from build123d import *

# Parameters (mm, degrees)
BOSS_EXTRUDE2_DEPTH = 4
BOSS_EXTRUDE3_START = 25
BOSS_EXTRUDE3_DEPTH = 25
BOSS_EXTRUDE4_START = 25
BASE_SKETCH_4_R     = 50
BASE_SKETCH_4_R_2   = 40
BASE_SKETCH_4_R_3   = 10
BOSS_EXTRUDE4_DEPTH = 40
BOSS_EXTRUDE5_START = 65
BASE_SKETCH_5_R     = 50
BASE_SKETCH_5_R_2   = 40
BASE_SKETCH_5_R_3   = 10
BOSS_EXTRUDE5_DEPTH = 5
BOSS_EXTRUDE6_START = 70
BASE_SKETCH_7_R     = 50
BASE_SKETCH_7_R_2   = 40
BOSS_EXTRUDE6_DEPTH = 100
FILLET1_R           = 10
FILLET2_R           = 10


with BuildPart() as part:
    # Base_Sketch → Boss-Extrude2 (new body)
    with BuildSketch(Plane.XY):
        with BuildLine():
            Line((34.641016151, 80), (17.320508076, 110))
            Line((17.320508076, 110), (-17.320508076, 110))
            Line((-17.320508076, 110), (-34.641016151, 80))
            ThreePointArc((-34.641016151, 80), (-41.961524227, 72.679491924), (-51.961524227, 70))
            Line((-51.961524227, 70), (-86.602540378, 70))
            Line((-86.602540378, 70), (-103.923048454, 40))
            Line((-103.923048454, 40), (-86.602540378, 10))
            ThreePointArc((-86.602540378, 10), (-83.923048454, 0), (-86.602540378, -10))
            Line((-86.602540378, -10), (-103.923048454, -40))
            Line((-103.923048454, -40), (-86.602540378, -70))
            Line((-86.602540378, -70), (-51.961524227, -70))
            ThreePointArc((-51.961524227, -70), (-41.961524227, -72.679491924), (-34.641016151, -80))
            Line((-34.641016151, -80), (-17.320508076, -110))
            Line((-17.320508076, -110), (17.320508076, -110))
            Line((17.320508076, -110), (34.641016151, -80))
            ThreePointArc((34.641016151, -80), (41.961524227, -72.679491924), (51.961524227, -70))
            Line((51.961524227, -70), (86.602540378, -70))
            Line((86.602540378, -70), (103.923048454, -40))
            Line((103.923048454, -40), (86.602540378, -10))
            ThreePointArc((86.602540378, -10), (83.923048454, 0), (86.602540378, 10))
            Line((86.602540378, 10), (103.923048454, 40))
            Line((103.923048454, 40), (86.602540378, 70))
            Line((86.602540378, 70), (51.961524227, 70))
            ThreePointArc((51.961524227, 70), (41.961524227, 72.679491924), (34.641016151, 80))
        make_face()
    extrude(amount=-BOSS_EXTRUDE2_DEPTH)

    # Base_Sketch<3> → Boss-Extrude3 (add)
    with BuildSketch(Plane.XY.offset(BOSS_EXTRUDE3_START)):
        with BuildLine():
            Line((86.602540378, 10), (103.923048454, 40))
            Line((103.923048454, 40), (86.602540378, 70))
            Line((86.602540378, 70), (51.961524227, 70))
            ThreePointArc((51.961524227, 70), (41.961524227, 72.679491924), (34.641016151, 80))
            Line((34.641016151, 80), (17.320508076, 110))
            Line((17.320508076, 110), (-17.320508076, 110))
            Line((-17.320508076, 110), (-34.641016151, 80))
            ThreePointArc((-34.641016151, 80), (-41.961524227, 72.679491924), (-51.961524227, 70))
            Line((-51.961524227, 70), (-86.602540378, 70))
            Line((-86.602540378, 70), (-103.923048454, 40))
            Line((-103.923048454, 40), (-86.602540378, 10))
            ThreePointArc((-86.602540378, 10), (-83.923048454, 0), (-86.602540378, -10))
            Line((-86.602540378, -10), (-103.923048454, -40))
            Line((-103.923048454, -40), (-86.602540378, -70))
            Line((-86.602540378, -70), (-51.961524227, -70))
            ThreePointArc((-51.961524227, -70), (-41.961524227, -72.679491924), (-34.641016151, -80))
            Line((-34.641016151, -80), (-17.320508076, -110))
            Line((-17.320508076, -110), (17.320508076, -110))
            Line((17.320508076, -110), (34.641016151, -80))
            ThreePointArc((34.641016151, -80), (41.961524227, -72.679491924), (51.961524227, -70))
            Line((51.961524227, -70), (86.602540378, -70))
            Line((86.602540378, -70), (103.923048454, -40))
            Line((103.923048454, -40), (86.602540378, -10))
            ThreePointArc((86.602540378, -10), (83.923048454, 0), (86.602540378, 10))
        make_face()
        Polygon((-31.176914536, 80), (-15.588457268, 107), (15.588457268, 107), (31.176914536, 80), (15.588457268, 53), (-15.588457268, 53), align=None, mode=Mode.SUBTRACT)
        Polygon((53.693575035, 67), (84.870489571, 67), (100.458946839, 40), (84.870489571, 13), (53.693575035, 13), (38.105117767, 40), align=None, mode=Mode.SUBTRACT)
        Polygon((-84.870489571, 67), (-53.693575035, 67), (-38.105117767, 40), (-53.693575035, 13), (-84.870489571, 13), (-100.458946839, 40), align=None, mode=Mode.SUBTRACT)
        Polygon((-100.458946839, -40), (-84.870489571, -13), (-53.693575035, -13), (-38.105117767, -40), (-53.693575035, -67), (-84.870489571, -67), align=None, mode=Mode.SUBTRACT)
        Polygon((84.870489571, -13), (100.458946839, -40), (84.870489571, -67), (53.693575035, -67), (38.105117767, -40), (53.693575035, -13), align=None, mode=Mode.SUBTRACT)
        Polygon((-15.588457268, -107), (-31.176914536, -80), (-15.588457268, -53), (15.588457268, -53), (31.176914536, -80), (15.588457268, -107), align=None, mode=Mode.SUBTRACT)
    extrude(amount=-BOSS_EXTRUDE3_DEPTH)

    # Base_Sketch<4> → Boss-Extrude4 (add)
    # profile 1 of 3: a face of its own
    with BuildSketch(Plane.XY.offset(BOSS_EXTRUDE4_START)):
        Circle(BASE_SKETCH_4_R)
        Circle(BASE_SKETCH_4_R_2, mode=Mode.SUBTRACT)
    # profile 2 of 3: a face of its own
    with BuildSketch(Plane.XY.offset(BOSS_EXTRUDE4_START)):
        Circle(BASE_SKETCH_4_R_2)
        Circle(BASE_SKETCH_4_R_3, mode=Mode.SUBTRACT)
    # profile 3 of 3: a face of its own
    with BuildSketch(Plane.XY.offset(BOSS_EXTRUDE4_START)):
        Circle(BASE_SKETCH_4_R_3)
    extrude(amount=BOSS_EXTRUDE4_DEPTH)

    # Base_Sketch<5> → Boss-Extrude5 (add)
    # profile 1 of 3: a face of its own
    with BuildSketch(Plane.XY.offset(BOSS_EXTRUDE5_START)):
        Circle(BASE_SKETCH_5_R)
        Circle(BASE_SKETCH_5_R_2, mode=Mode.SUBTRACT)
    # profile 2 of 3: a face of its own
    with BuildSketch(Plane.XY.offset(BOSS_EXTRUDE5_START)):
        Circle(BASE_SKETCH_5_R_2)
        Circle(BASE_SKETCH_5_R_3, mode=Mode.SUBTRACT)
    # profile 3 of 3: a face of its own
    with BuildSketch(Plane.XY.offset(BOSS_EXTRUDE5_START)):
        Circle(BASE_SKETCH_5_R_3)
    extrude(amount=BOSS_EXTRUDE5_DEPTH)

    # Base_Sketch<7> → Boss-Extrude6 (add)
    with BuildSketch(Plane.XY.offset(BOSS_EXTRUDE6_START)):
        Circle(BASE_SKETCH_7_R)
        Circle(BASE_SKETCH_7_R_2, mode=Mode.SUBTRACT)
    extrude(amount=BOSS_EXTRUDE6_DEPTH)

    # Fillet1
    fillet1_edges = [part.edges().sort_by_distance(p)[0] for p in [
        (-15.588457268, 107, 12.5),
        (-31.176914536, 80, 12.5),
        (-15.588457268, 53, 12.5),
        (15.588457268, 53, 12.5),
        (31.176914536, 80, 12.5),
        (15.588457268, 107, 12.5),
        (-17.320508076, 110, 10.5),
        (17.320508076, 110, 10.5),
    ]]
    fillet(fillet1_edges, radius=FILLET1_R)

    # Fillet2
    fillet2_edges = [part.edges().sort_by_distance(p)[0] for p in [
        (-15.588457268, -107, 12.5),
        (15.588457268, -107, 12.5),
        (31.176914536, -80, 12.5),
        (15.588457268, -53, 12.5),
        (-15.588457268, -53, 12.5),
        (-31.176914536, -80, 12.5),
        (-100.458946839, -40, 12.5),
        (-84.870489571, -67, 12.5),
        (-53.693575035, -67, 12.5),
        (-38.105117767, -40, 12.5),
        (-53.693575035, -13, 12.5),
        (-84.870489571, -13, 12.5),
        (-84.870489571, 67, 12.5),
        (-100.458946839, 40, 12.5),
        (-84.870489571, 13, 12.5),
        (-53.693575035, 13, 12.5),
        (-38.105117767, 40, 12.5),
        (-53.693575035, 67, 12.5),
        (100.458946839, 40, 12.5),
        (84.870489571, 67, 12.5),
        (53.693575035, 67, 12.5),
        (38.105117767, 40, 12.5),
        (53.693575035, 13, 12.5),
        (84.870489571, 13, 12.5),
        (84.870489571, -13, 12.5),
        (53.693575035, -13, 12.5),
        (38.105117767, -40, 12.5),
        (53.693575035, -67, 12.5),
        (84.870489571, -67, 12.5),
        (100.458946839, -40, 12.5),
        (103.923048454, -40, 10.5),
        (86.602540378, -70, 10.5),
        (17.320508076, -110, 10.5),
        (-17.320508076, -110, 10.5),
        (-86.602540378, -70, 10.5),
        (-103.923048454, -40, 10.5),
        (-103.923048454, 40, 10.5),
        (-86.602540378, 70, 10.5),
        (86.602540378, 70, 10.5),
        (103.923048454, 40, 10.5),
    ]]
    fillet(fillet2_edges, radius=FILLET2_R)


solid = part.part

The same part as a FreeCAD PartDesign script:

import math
import FreeCAD as App
import Part
import Sketcher
from FreeCAD import Vector
Q = App.Units.Quantity


def edges_at(feature, points):
    """Names of the edges that pass closest to the given points."""
    edges = feature.Shape.Edges
    near = lambda p: min(range(len(edges)), key=lambda i: edges[i].distToShape(Part.Vertex(*p))[0])
    return sorted({f"Edge{near(p) + 1}" for p in points})

doc = App.newDocument("Part")
params = doc.addObject("Spreadsheet::Sheet", "Params")
for row, (alias, value) in enumerate([
    ("sketch1_radius", "20 mm"),
    ("pad1_length", "4 mm"),
    ("sketch2_radius", "20 mm"),
    ("pad2_length", "25 mm"),
    ("sketch3_diameter", "100 mm"),
    ("pad3_length", "40 mm"),
    ("sketch4_diameter", "100 mm"),
    ("pad4_length", "5 mm"),
    ("sketch5_diameter", "100 mm"),
    ("sketch5_diameter2", "80 mm"),
    ("pad5_length", "100 mm"),
    ("fillet_radius", "10 mm"),
    ("fillet2_radius", "10 mm"),
], start=1):
    params.set(f"A{row}", alias)
    params.set(f"B{row}", "=" + value)
    params.setAlias(f"B{row}", alias)

body = doc.addObject("PartDesign::Body", "Body")

sketch1 = body.newObject("Sketcher::SketchObject", "Sketch")
sketch1.AttachmentSupport = (doc.getObject("XY_Plane"), [""])
sketch1.MapMode = "FlatFace"
sketch1.addGeometry(Part.LineSegment(Vector(35, 80, 0), Vector(17, 110, 0)), False)
sketch1.addGeometry(Part.LineSegment(Vector(17, 110, 0), Vector(-17, 110, 0)), False)
sketch1.addGeometry(Part.LineSegment(Vector(-17, 110, 0), Vector(-35, 80, 0)), False)
sketch1.addGeometry(Part.ArcOfCircle(Part.Circle(Vector(-52, 90, 0), Vector(0, 0, 1), 20), math.radians(-90), math.radians(-30)), False)
sketch1.addGeometry(Part.LineSegment(Vector(-52, 70, 0), Vector(-87, 70, 0)), False)
sketch1.addGeometry(Part.LineSegment(Vector(-87, 70, 0), Vector(-104, 40, 0)), False)
sketch1.addGeometry(Part.LineSegment(Vector(-104, 40, 0), Vector(-87, 10, 0)), False)
sketch1.addGeometry(Part.ArcOfCircle(Part.Circle(Vector(-104, 0, 0), Vector(0, 0, 1), 20), math.radians(-30), math.radians(30)), False)
sketch1.addGeometry(Part.LineSegment(Vector(-87, -10, 0), Vector(-104, -40, 0)), False)
sketch1.addGeometry(Part.LineSegment(Vector(-104, -40, 0), Vector(-87, -70, 0)), False)
sketch1.addGeometry(Part.LineSegment(Vector(-87, -70, 0), Vector(-52, -70, 0)), False)
sketch1.addGeometry(Part.ArcOfCircle(Part.Circle(Vector(-52, -90, 0), Vector(0, 0, 1), 20), math.radians(30), math.radians(90)), False)
sketch1.addGeometry(Part.LineSegment(Vector(-35, -80, 0), Vector(-17, -110, 0)), False)
sketch1.addGeometry(Part.LineSegment(Vector(-17, -110, 0), Vector(17, -110, 0)), False)
sketch1.addGeometry(Part.LineSegment(Vector(17, -110, 0), Vector(35, -80, 0)), False)
sketch1.addGeometry(Part.ArcOfCircle(Part.Circle(Vector(52, -90, 0), Vector(0, 0, 1), 20), math.radians(90), math.radians(150)), False)
sketch1.addGeometry(Part.LineSegment(Vector(52, -70, 0), Vector(87, -70, 0)), False)
sketch1.addGeometry(Part.LineSegment(Vector(87, -70, 0), Vector(104, -40, 0)), False)
sketch1.addGeometry(Part.LineSegment(Vector(104, -40, 0), Vector(87, -10, 0)), False)
sketch1.addGeometry(Part.ArcOfCircle(Part.Circle(Vector(104, 0, 0), Vector(0, 0, 1), 20), math.radians(150), math.radians(210)), False)
sketch1.addGeometry(Part.LineSegment(Vector(87, 10, 0), Vector(104, 40, 0)), False)
sketch1.addGeometry(Part.LineSegment(Vector(104, 40, 0), Vector(87, 70, 0)), False)
sketch1.addGeometry(Part.LineSegment(Vector(87, 70, 0), Vector(52, 70, 0)), False)
sketch1.addGeometry(Part.ArcOfCircle(Part.Circle(Vector(52, 90, 0), Vector(0, 0, 1), 20), math.radians(-150), math.radians(-90)), False)
sketch1.addConstraint(Sketcher.Constraint("Coincident", 0, 2, 1, 1))
sketch1.addConstraint(Sketcher.Constraint("Coincident", 1, 2, 2, 1))
sketch1.addConstraint(Sketcher.Constraint("Tangent", 2, 2, 3, 2))
sketch1.addConstraint(Sketcher.Constraint("Tangent", 3, 1, 4, 1))
sketch1.addConstraint(Sketcher.Constraint("Coincident", 4, 2, 5, 1))
sketch1.addConstraint(Sketcher.Constraint("Coincident", 5, 2, 6, 1))
sketch1.addConstraint(Sketcher.Constraint("Tangent", 6, 2, 7, 2))
sketch1.addConstraint(Sketcher.Constraint("Tangent", 7, 1, 8, 1))
sketch1.addConstraint(Sketcher.Constraint("Coincident", 8, 2, 9, 1))
sketch1.addConstraint(Sketcher.Constraint("Coincident", 9, 2, 10, 1))
sketch1.addConstraint(Sketcher.Constraint("Tangent", 10, 2, 11, 2))
sketch1.addConstraint(Sketcher.Constraint("Tangent", 11, 1, 12, 1))
sketch1.addConstraint(Sketcher.Constraint("Coincident", 12, 2, 13, 1))
sketch1.addConstraint(Sketcher.Constraint("Coincident", 13, 2, 14, 1))
sketch1.addConstraint(Sketcher.Constraint("Tangent", 14, 2, 15, 2))
sketch1.addConstraint(Sketcher.Constraint("Tangent", 15, 1, 16, 1))
sketch1.addConstraint(Sketcher.Constraint("Coincident", 16, 2, 17, 1))
sketch1.addConstraint(Sketcher.Constraint("Coincident", 17, 2, 18, 1))
sketch1.addConstraint(Sketcher.Constraint("Tangent", 18, 2, 19, 2))
sketch1.addConstraint(Sketcher.Constraint("Tangent", 19, 1, 20, 1))
sketch1.addConstraint(Sketcher.Constraint("Coincident", 20, 2, 21, 1))
sketch1.addConstraint(Sketcher.Constraint("Coincident", 21, 2, 22, 1))
sketch1.addConstraint(Sketcher.Constraint("Tangent", 22, 2, 23, 2))
sketch1.addConstraint(Sketcher.Constraint("Tangent", 23, 1, 0, 1))
sketch1.addConstraint(Sketcher.Constraint("Horizontal", 1))
sketch1.addConstraint(Sketcher.Constraint("Horizontal", 4))
sketch1.addConstraint(Sketcher.Constraint("Horizontal", 10))
sketch1.addConstraint(Sketcher.Constraint("Horizontal", 13))
sketch1.addConstraint(Sketcher.Constraint("Horizontal", 16))
sketch1.addConstraint(Sketcher.Constraint("Horizontal", 22))
sketch1.addConstraint(Sketcher.Constraint("Equal", 3, 7))
sketch1.addConstraint(Sketcher.Constraint("Equal", 7, 11))
sketch1.addConstraint(Sketcher.Constraint("Equal", 11, 15))
sketch1.addConstraint(Sketcher.Constraint("Equal", 15, 19))
sketch1.addConstraint(Sketcher.Constraint("Equal", 19, 23))
sketch1.addConstraint(Sketcher.Constraint("Symmetric", 3, 3, 15, 3, -1, 1))
sketch1.addConstraint(Sketcher.Constraint("Symmetric", 7, 3, 19, 3, -1, 1))
sketch1.addConstraint(Sketcher.Constraint("Symmetric", 11, 3, 23, 3, -1, 1))
sketch1.addConstraint(Sketcher.Constraint("Symmetric", 0, 2, 12, 2, -1, 1))
sketch1.addConstraint(Sketcher.Constraint("Symmetric", 5, 2, 17, 2, -1, 1))
sketch1.addConstraint(Sketcher.Constraint("Symmetric", 8, 2, 20, 2, -1, 1))
sketch1.addConstraint(Sketcher.Constraint("Symmetric", 11, 3, 15, 3, -2))
sketch1.addConstraint(Sketcher.Constraint("Symmetric", 8, 2, 17, 2, -2))
sketch1.addConstraint(Sketcher.Constraint("PointOnObject", 7, 3, -1))
sketch1.addConstraint(Sketcher.Constraint("Parallel", 2, 5))
sketch1.addConstraint(Sketcher.Constraint("Parallel", 0, 6))
sketch1.addConstraint(Sketcher.Constraint("Parallel", 5, 8))
sketch1.addConstraint(Sketcher.Constraint("Parallel", 6, 9))
sketch1.addConstraint(Sketcher.Constraint("Parallel", 8, 14))
sketch1.addConstraint(Sketcher.Constraint("Parallel", 14, 17))
sketch1.addConstraint(Sketcher.Constraint("Parallel", 18, 21))
sketch1.addConstraint(Sketcher.Constraint("Vertical", 7, 3, 5, 2))
sketch1.addConstraint(Sketcher.Constraint("Vertical", 4, 2, 6, 2))
sketch1.addConstraint(Sketcher.Constraint("Equal", 1, 4))
sketch1.addConstraint(Sketcher.Constraint("Equal", 2, 5))
sketch1.addConstraint(Sketcher.Constraint("Radius", 3, Q("20 mm")))
sketch1.addConstraint(Sketcher.Constraint("Angle", 0, Q("120 deg")))
sketch1.addConstraint(Sketcher.Constraint("DistanceX", 1, 2, 1, 1, Q("34.641016 mm")))
sketch1.setExpression("Constraints[55]", "Params.sketch1_radius")
pad1 = body.newObject("PartDesign::Pad", "Pad")
pad1.Profile = sketch1
pad1.setExpression("Length", "Params.pad1_length")
pad1.Reversed = True

sketch2 = body.newObject("Sketcher::SketchObject", "Sketch001")
sketch2.AttachmentSupport = (doc.getObject("XY_Plane"), [""])
sketch2.MapMode = "FlatFace"
sketch2.AttachmentOffset = App.Placement(Vector(0, 0, 25), App.Rotation())
sketch2.addGeometry(Part.LineSegment(Vector(87, 10, 0), Vector(104, 40, 0)), False)
sketch2.addGeometry(Part.LineSegment(Vector(104, 40, 0), Vector(87, 70, 0)), False)
sketch2.addGeometry(Part.LineSegment(Vector(87, 70, 0), Vector(52, 70, 0)), False)
sketch2.addGeometry(Part.ArcOfCircle(Part.Circle(Vector(52, 90, 0), Vector(0, 0, 1), 20), math.radians(-150), math.radians(-90)), False)
sketch2.addGeometry(Part.LineSegment(Vector(35, 80, 0), Vector(17, 110, 0)), False)
sketch2.addGeometry(Part.LineSegment(Vector(17, 110, 0), Vector(-17, 110, 0)), False)
sketch2.addGeometry(Part.LineSegment(Vector(-17, 110, 0), Vector(-35, 80, 0)), False)
sketch2.addGeometry(Part.ArcOfCircle(Part.Circle(Vector(-52, 90, 0), Vector(0, 0, 1), 20), math.radians(-90), math.radians(-30)), False)
sketch2.addGeometry(Part.LineSegment(Vector(-52, 70, 0), Vector(-87, 70, 0)), False)
sketch2.addGeometry(Part.LineSegment(Vector(-87, 70, 0), Vector(-104, 40, 0)), False)
sketch2.addGeometry(Part.LineSegment(Vector(-104, 40, 0), Vector(-87, 10, 0)), False)
sketch2.addGeometry(Part.ArcOfCircle(Part.Circle(Vector(-104, 0, 0), Vector(0, 0, 1), 20), math.radians(-30), math.radians(30)), False)
sketch2.addGeometry(Part.LineSegment(Vector(-87, -10, 0), Vector(-104, -40, 0)), False)
sketch2.addGeometry(Part.LineSegment(Vector(-104, -40, 0), Vector(-87, -70, 0)), False)
sketch2.addGeometry(Part.LineSegment(Vector(-87, -70, 0), Vector(-52, -70, 0)), False)
sketch2.addGeometry(Part.ArcOfCircle(Part.Circle(Vector(-52, -90, 0), Vector(0, 0, 1), 20), math.radians(30), math.radians(90)), False)
sketch2.addGeometry(Part.LineSegment(Vector(-35, -80, 0), Vector(-17, -110, 0)), False)
sketch2.addGeometry(Part.LineSegment(Vector(-17, -110, 0), Vector(17, -110, 0)), False)
sketch2.addGeometry(Part.LineSegment(Vector(17, -110, 0), Vector(35, -80, 0)), False)
sketch2.addGeometry(Part.ArcOfCircle(Part.Circle(Vector(52, -90, 0), Vector(0, 0, 1), 20), math.radians(90), math.radians(150)), False)
sketch2.addGeometry(Part.LineSegment(Vector(52, -70, 0), Vector(87, -70, 0)), False)
sketch2.addGeometry(Part.LineSegment(Vector(87, -70, 0), Vector(104, -40, 0)), False)
sketch2.addGeometry(Part.LineSegment(Vector(104, -40, 0), Vector(87, -10, 0)), False)
sketch2.addGeometry(Part.ArcOfCircle(Part.Circle(Vector(104, 0, 0), Vector(0, 0, 1), 20), math.radians(150), math.radians(210)), False)
sketch2.addGeometry(Part.LineSegment(Vector(-85, -67, 0), Vector(-100, -40, 0)), False)
sketch2.addGeometry(Part.LineSegment(Vector(-100, -40, 0), Vector(-85, -13, 0)), False)
sketch2.addGeometry(Part.LineSegment(Vector(-85, -13, 0), Vector(-54, -13, 0)), False)
sketch2.addGeometry(Part.LineSegment(Vector(-54, -13, 0), Vector(-38, -40, 0)), False)
sketch2.addGeometry(Part.LineSegment(Vector(-38, -40, 0), Vector(-54, -67, 0)), False)
sketch2.addGeometry(Part.LineSegment(Vector(-54, -67, 0), Vector(-85, -67, 0)), False)
sketch2.addGeometry(Part.LineSegment(Vector(16, -107, 0), Vector(-16, -107, 0)), False)
sketch2.addGeometry(Part.LineSegment(Vector(-16, -107, 0), Vector(-31, -80, 0)), False)
sketch2.addGeometry(Part.LineSegment(Vector(-31, -80, 0), Vector(-16, -53, 0)), False)
sketch2.addGeometry(Part.LineSegment(Vector(-16, -53, 0), Vector(16, -53, 0)), False)
sketch2.addGeometry(Part.LineSegment(Vector(16, -53, 0), Vector(31, -80, 0)), False)
sketch2.addGeometry(Part.LineSegment(Vector(31, -80, 0), Vector(16, -107, 0)), False)
sketch2.addGeometry(Part.LineSegment(Vector(54, -13, 0), Vector(85, -13, 0)), False)
sketch2.addGeometry(Part.LineSegment(Vector(85, -13, 0), Vector(100, -40, 0)), False)
sketch2.addGeometry(Part.LineSegment(Vector(100, -40, 0), Vector(85, -67, 0)), False)
sketch2.addGeometry(Part.LineSegment(Vector(85, -67, 0), Vector(54, -67, 0)), False)
sketch2.addGeometry(Part.LineSegment(Vector(54, -67, 0), Vector(38, -40, 0)), False)
sketch2.addGeometry(Part.LineSegment(Vector(38, -40, 0), Vector(54, -13, 0)), False)
sketch2.addGeometry(Part.LineSegment(Vector(-100, 40, 0), Vector(-85, 67, 0)), False)
sketch2.addGeometry(Part.LineSegment(Vector(-85, 67, 0), Vector(-54, 67, 0)), False)
sketch2.addGeometry(Part.LineSegment(Vector(-54, 67, 0), Vector(-38, 40, 0)), False)
sketch2.addGeometry(Part.LineSegment(Vector(-38, 40, 0), Vector(-54, 13, 0)), False)
sketch2.addGeometry(Part.LineSegment(Vector(-54, 13, 0), Vector(-85, 13, 0)), False)
sketch2.addGeometry(Part.LineSegment(Vector(-85, 13, 0), Vector(-100, 40, 0)), False)
sketch2.addGeometry(Part.LineSegment(Vector(38, 40, 0), Vector(54, 67, 0)), False)
sketch2.addGeometry(Part.LineSegment(Vector(54, 67, 0), Vector(85, 67, 0)), False)
sketch2.addGeometry(Part.LineSegment(Vector(85, 67, 0), Vector(100, 40, 0)), False)
sketch2.addGeometry(Part.LineSegment(Vector(100, 40, 0), Vector(85, 13, 0)), False)
sketch2.addGeometry(Part.LineSegment(Vector(85, 13, 0), Vector(54, 13, 0)), False)
sketch2.addGeometry(Part.LineSegment(Vector(54, 13, 0), Vector(38, 40, 0)), False)
sketch2.addGeometry(Part.LineSegment(Vector(-16, 53, 0), Vector(-31, 80, 0)), False)
sketch2.addGeometry(Part.LineSegment(Vector(-31, 80, 0), Vector(-16, 107, 0)), False)
sketch2.addGeometry(Part.LineSegment(Vector(-16, 107, 0), Vector(16, 107, 0)), False)
sketch2.addGeometry(Part.LineSegment(Vector(16, 107, 0), Vector(31, 80, 0)), False)
sketch2.addGeometry(Part.LineSegment(Vector(31, 80, 0), Vector(16, 53, 0)), False)
sketch2.addGeometry(Part.LineSegment(Vector(16, 53, 0), Vector(-16, 53, 0)), False)
sketch2.addConstraint(Sketcher.Constraint("Coincident", 0, 2, 1, 1))
sketch2.addConstraint(Sketcher.Constraint("Coincident", 1, 2, 2, 1))
sketch2.addConstraint(Sketcher.Constraint("Tangent", 2, 2, 3, 2))
sketch2.addConstraint(Sketcher.Constraint("Tangent", 3, 1, 4, 1))
sketch2.addConstraint(Sketcher.Constraint("Coincident", 4, 2, 5, 1))
sketch2.addConstraint(Sketcher.Constraint("Coincident", 5, 2, 6, 1))
sketch2.addConstraint(Sketcher.Constraint("Tangent", 6, 2, 7, 2))
sketch2.addConstraint(Sketcher.Constraint("Tangent", 7, 1, 8, 1))
sketch2.addConstraint(Sketcher.Constraint("Coincident", 8, 2, 9, 1))
sketch2.addConstraint(Sketcher.Constraint("Coincident", 9, 2, 10, 1))
sketch2.addConstraint(Sketcher.Constraint("Tangent", 10, 2, 11, 2))
sketch2.addConstraint(Sketcher.Constraint("Tangent", 11, 1, 12, 1))
sketch2.addConstraint(Sketcher.Constraint("Coincident", 12, 2, 13, 1))
sketch2.addConstraint(Sketcher.Constraint("Coincident", 13, 2, 14, 1))
sketch2.addConstraint(Sketcher.Constraint("Tangent", 14, 2, 15, 2))
sketch2.addConstraint(Sketcher.Constraint("Tangent", 15, 1, 16, 1))
sketch2.addConstraint(Sketcher.Constraint("Coincident", 16, 2, 17, 1))
sketch2.addConstraint(Sketcher.Constraint("Coincident", 17, 2, 18, 1))
sketch2.addConstraint(Sketcher.Constraint("Tangent", 18, 2, 19, 2))
sketch2.addConstraint(Sketcher.Constraint("Tangent", 19, 1, 20, 1))
sketch2.addConstraint(Sketcher.Constraint("Coincident", 20, 2, 21, 1))
sketch2.addConstraint(Sketcher.Constraint("Coincident", 21, 2, 22, 1))
sketch2.addConstraint(Sketcher.Constraint("Tangent", 22, 2, 23, 2))
sketch2.addConstraint(Sketcher.Constraint("Tangent", 23, 1, 0, 1))
sketch2.addConstraint(Sketcher.Constraint("Coincident", 24, 2, 25, 1))
sketch2.addConstraint(Sketcher.Constraint("Coincident", 25, 2, 26, 1))
sketch2.addConstraint(Sketcher.Constraint("Coincident", 26, 2, 27, 1))
sketch2.addConstraint(Sketcher.Constraint("Coincident", 27, 2, 28, 1))
sketch2.addConstraint(Sketcher.Constraint("Coincident", 28, 2, 29, 1))
sketch2.addConstraint(Sketcher.Constraint("Coincident", 29, 2, 24, 1))
sketch2.addConstraint(Sketcher.Constraint("Coincident", 30, 2, 31, 1))
sketch2.addConstraint(Sketcher.Constraint("Coincident", 31, 2, 32, 1))
sketch2.addConstraint(Sketcher.Constraint("Coincident", 32, 2, 33, 1))
sketch2.addConstraint(Sketcher.Constraint("Coincident", 33, 2, 34, 1))
sketch2.addConstraint(Sketcher.Constraint("Coincident", 34, 2, 35, 1))
sketch2.addConstraint(Sketcher.Constraint("Coincident", 35, 2, 30, 1))
sketch2.addConstraint(Sketcher.Constraint("Coincident", 36, 2, 37, 1))
sketch2.addConstraint(Sketcher.Constraint("Coincident", 37, 2, 38, 1))
sketch2.addConstraint(Sketcher.Constraint("Coincident", 38, 2, 39, 1))
sketch2.addConstraint(Sketcher.Constraint("Coincident", 39, 2, 40, 1))
sketch2.addConstraint(Sketcher.Constraint("Coincident", 40, 2, 41, 1))
sketch2.addConstraint(Sketcher.Constraint("Coincident", 41, 2, 36, 1))
sketch2.addConstraint(Sketcher.Constraint("Coincident", 42, 2, 43, 1))
sketch2.addConstraint(Sketcher.Constraint("Coincident", 43, 2, 44, 1))
sketch2.addConstraint(Sketcher.Constraint("Coincident", 44, 2, 45, 1))
sketch2.addConstraint(Sketcher.Constraint("Coincident", 45, 2, 46, 1))
sketch2.addConstraint(Sketcher.Constraint("Coincident", 46, 2, 47, 1))
sketch2.addConstraint(Sketcher.Constraint("Coincident", 47, 2, 42, 1))
sketch2.addConstraint(Sketcher.Constraint("Coincident", 48, 2, 49, 1))
sketch2.addConstraint(Sketcher.Constraint("Coincident", 49, 2, 50, 1))
sketch2.addConstraint(Sketcher.Constraint("Coincident", 50, 2, 51, 1))
sketch2.addConstraint(Sketcher.Constraint("Coincident", 51, 2, 52, 1))
sketch2.addConstraint(Sketcher.Constraint("Coincident", 52, 2, 53, 1))
sketch2.addConstraint(Sketcher.Constraint("Coincident", 53, 2, 48, 1))
sketch2.addConstraint(Sketcher.Constraint("Coincident", 54, 2, 55, 1))
sketch2.addConstraint(Sketcher.Constraint("Coincident", 55, 2, 56, 1))
sketch2.addConstraint(Sketcher.Constraint("Coincident", 56, 2, 57, 1))
sketch2.addConstraint(Sketcher.Constraint("Coincident", 57, 2, 58, 1))
sketch2.addConstraint(Sketcher.Constraint("Coincident", 58, 2, 59, 1))
sketch2.addConstraint(Sketcher.Constraint("Coincident", 59, 2, 54, 1))
sketch2.addConstraint(Sketcher.Constraint("Horizontal", 2))
sketch2.addConstraint(Sketcher.Constraint("Horizontal", 5))
sketch2.addConstraint(Sketcher.Constraint("Horizontal", 8))
sketch2.addConstraint(Sketcher.Constraint("Horizontal", 14))
sketch2.addConstraint(Sketcher.Constraint("Horizontal", 17))
sketch2.addConstraint(Sketcher.Constraint("Horizontal", 20))
sketch2.addConstraint(Sketcher.Constraint("Horizontal", 26))
sketch2.addConstraint(Sketcher.Constraint("Horizontal", 29))
sketch2.addConstraint(Sketcher.Constraint("Horizontal", 30))
sketch2.addConstraint(Sketcher.Constraint("Horizontal", 33))
sketch2.addConstraint(Sketcher.Constraint("Horizontal", 36))
sketch2.addConstraint(Sketcher.Constraint("Horizontal", 39))
sketch2.addConstraint(Sketcher.Constraint("Horizontal", 43))
sketch2.addConstraint(Sketcher.Constraint("Horizontal", 46))
sketch2.addConstraint(Sketcher.Constraint("Horizontal", 49))
sketch2.addConstraint(Sketcher.Constraint("Horizontal", 52))
sketch2.addConstraint(Sketcher.Constraint("Horizontal", 56))
sketch2.addConstraint(Sketcher.Constraint("Horizontal", 59))
sketch2.addConstraint(Sketcher.Constraint("Equal", 3, 7))
sketch2.addConstraint(Sketcher.Constraint("Equal", 7, 11))
sketch2.addConstraint(Sketcher.Constraint("Equal", 11, 15))
sketch2.addConstraint(Sketcher.Constraint("Equal", 15, 19))
sketch2.addConstraint(Sketcher.Constraint("Equal", 19, 23))
sketch2.addConstraint(Sketcher.Constraint("Symmetric", 3, 3, 15, 3, -1, 1))
sketch2.addConstraint(Sketcher.Constraint("Symmetric", 7, 3, 19, 3, -1, 1))
sketch2.addConstraint(Sketcher.Constraint("Symmetric", 11, 3, 23, 3, -1, 1))
sketch2.addConstraint(Sketcher.Constraint("Symmetric", 0, 2, 12, 2, -1, 1))
sketch2.addConstraint(Sketcher.Constraint("Symmetric", 4, 2, 16, 2, -1, 1))
sketch2.addConstraint(Sketcher.Constraint("Symmetric", 9, 2, 21, 2, -1, 1))
sketch2.addConstraint(Sketcher.Constraint("Symmetric", 38, 2, 42, 2, -1, 1))
sketch2.addConstraint(Sketcher.Constraint("Symmetric", 40, 2, 44, 2, -1, 1))
sketch2.addConstraint(Sketcher.Constraint("Symmetric", 41, 2, 45, 2, -1, 1))
sketch2.addConstraint(Sketcher.Constraint("Symmetric", 37, 2, 47, 2, -1, 1))
sketch2.addConstraint(Sketcher.Constraint("Symmetric", 28, 2, 48, 2, -1, 1))
sketch2.addConstraint(Sketcher.Constraint("Symmetric", 24, 2, 50, 2, -1, 1))
sketch2.addConstraint(Sketcher.Constraint("Symmetric", 25, 2, 51, 2, -1, 1))
sketch2.addConstraint(Sketcher.Constraint("Symmetric", 27, 2, 53, 2, -1, 1))
sketch2.addConstraint(Sketcher.Constraint("Symmetric", 34, 2, 54, 2, -1, 1))
sketch2.addConstraint(Sketcher.Constraint("Symmetric", 35, 2, 55, 2, -1, 1))
sketch2.addConstraint(Sketcher.Constraint("Symmetric", 31, 2, 57, 2, -1, 1))
sketch2.addConstraint(Sketcher.Constraint("Symmetric", 32, 2, 58, 2, -1, 1))
sketch2.addConstraint(Sketcher.Constraint("Symmetric", 3, 3, 7, 3, -2))
sketch2.addConstraint(Sketcher.Constraint("Symmetric", 0, 2, 9, 2, -2))
sketch2.addConstraint(Sketcher.Constraint("Symmetric", 31, 2, 34, 2, -2))
sketch2.addConstraint(Sketcher.Constraint("Symmetric", 25, 2, 36, 2, -2))
sketch2.addConstraint(Sketcher.Constraint("Symmetric", 24, 2, 37, 2, -2))
sketch2.addConstraint(Sketcher.Constraint("Symmetric", 29, 2, 38, 2, -2))
sketch2.addConstraint(Sketcher.Constraint("Symmetric", 27, 2, 40, 2, -2))
sketch2.addConstraint(Sketcher.Constraint("PointOnObject", 11, 3, -1))
sketch2.addConstraint(Sketcher.Constraint("Parallel", 1, 4))
sketch2.addConstraint(Sketcher.Constraint("Parallel", 0, 6))
sketch2.addConstraint(Sketcher.Constraint("Parallel", 6, 9))
sketch2.addConstraint(Sketcher.Constraint("Parallel", 4, 10))
sketch2.addConstraint(Sketcher.Constraint("Parallel", 10, 13))
sketch2.addConstraint(Sketcher.Constraint("Parallel", 12, 18))
sketch2.addConstraint(Sketcher.Constraint("Parallel", 18, 21))
sketch2.addConstraint(Sketcher.Constraint("Parallel", 22, 24))
sketch2.addConstraint(Sketcher.Constraint("Parallel", 21, 25))
sketch2.addConstraint(Sketcher.Constraint("Parallel", 24, 27))
sketch2.addConstraint(Sketcher.Constraint("Parallel", 25, 28))
sketch2.addConstraint(Sketcher.Constraint("Parallel", 27, 31))
sketch2.addConstraint(Sketcher.Constraint("Parallel", 28, 32))
sketch2.addConstraint(Sketcher.Constraint("Parallel", 31, 34))
sketch2.addConstraint(Sketcher.Constraint("Parallel", 32, 35))
sketch2.addConstraint(Sketcher.Constraint("Parallel", 37, 40))
sketch2.addConstraint(Sketcher.Constraint("Parallel", 38, 41))
sketch2.addConstraint(Sketcher.Constraint("Parallel", 40, 44))
sketch2.addConstraint(Sketcher.Constraint("Parallel", 44, 47))
sketch2.addConstraint(Sketcher.Constraint("Parallel", 47, 50))
sketch2.addConstraint(Sketcher.Constraint("Parallel", 50, 53))
sketch2.addConstraint(Sketcher.Constraint("Parallel", 53, 54))
sketch2.addConstraint(Sketcher.Constraint("Parallel", 54, 57))
sketch2.addConstraint(Sketcher.Constraint("Horizontal", 21, 2, 24, 2))
sketch2.addConstraint(Sketcher.Constraint("Horizontal", 24, 2, 27, 2))
sketch2.addConstraint(Sketcher.Constraint("Horizontal", 18, 2, 31, 2))
sketch2.addConstraint(Sketcher.Constraint("Vertical", 23, 3, 0, 2))
sketch2.addConstraint(Sketcher.Constraint("Vertical", 8, 2, 10, 2))
sketch2.addConstraint(Sketcher.Constraint("Vertical", 26, 2, 28, 2))
sketch2.addConstraint(Sketcher.Constraint("Vertical", 30, 2, 32, 2))
sketch2.addConstraint(Sketcher.Constraint("Equal", 2, 5))
sketch2.addConstraint(Sketcher.Constraint("Equal", 29, 30))
sketch2.addConstraint(Sketcher.Constraint("Equal", 1, 4))
sketch2.addConstraint(Sketcher.Constraint("Equal", 28, 31))
sketch2.addConstraint(Sketcher.Constraint("Radius", 3, Q("20 mm")))
sketch2.addConstraint(Sketcher.Constraint("Angle", 0, Q("60 deg")))
sketch2.addConstraint(Sketcher.Constraint("DistanceY", 25, 2, -1, 1, Q("13 mm")))
sketch2.addConstraint(Sketcher.Constraint("DistanceX", 2, 2, 2, 1, Q("34.641016 mm")))
sketch2.addConstraint(Sketcher.Constraint("DistanceX", 26, 1, 26, 2, Q("31.176915 mm")))
sketch2.addConstraint(Sketcher.Constraint("DistanceX", 25, 2, -1, 1, Q("84.87049 mm")))
sketch2.setExpression("Constraints[143]", "Params.sketch2_radius")
pad2 = body.newObject("PartDesign::Pad", "Pad001")
pad2.Profile = sketch2
pad2.setExpression("Length", "Params.pad2_length")
pad2.Reversed = True

sketch3 = body.newObject("Sketcher::SketchObject", "Sketch002")
sketch3.AttachmentSupport = (doc.getObject("XY_Plane"), [""])
sketch3.MapMode = "FlatFace"
sketch3.AttachmentOffset = App.Placement(Vector(0, 0, 25), App.Rotation())
sketch3.addGeometry(Part.Circle(Vector(0, 0, 0), Vector(0, 0, 1), 50), False)
sketch3.addConstraint(Sketcher.Constraint("Coincident", 0, 3, -1, 1))
sketch3.addConstraint(Sketcher.Constraint("Diameter", 0, Q("100 mm")))
sketch3.setExpression("Constraints[1]", "Params.sketch3_diameter")
pad3 = body.newObject("PartDesign::Pad", "Pad002")
pad3.Profile = sketch3
pad3.setExpression("Length", "Params.pad3_length")

sketch4 = body.newObject("Sketcher::SketchObject", "Sketch003")
sketch4.AttachmentSupport = (doc.getObject("XY_Plane"), [""])
sketch4.MapMode = "FlatFace"
sketch4.AttachmentOffset = App.Placement(Vector(0, 0, 65), App.Rotation())
sketch4.addGeometry(Part.Circle(Vector(0, 0, 0), Vector(0, 0, 1), 50), False)
sketch4.addConstraint(Sketcher.Constraint("Coincident", 0, 3, -1, 1))
sketch4.addConstraint(Sketcher.Constraint("Diameter", 0, Q("100 mm")))
sketch4.setExpression("Constraints[1]", "Params.sketch4_diameter")
pad4 = body.newObject("PartDesign::Pad", "Pad003")
pad4.Profile = sketch4
pad4.setExpression("Length", "Params.pad4_length")

sketch5 = body.newObject("Sketcher::SketchObject", "Sketch004")
sketch5.AttachmentSupport = (doc.getObject("XY_Plane"), [""])
sketch5.MapMode = "FlatFace"
sketch5.AttachmentOffset = App.Placement(Vector(0, 0, 70), App.Rotation())
sketch5.addGeometry(Part.Circle(Vector(0, 0, 0), Vector(0, 0, 1), 50), False)
sketch5.addGeometry(Part.Circle(Vector(0, 0, 0), Vector(0, 0, 1), 40), False)
sketch5.addConstraint(Sketcher.Constraint("Coincident", 0, 3, -1, 1))
sketch5.addConstraint(Sketcher.Constraint("Coincident", 1, 3, -1, 1))
sketch5.addConstraint(Sketcher.Constraint("Diameter", 0, Q("100 mm")))
sketch5.addConstraint(Sketcher.Constraint("Diameter", 1, Q("80 mm")))
sketch5.setExpression("Constraints[2]", "Params.sketch5_diameter")
sketch5.setExpression("Constraints[3]", "Params.sketch5_diameter2")
pad5 = body.newObject("PartDesign::Pad", "Pad004")
pad5.Profile = sketch5
pad5.setExpression("Length", "Params.pad5_length")
doc.recompute()

fillet = body.newObject("PartDesign::Fillet", "Fillet")
fillet.Base = (pad5, edges_at(pad5, [
    (-15.588, 107, 12.5),
    (-31.177, 80, 12.5),
    (-15.588, 53, 12.5),
    (15.588, 53, 12.5),
    (31.177, 80, 12.5),
    (15.588, 107, 12.5),
    (-17.321, 110, 10.5),
    (17.321, 110, 10.5),
]))
fillet.setExpression("Radius", "Params.fillet_radius")
doc.recompute()

fillet2 = body.newObject("PartDesign::Fillet", "Fillet001")
fillet2.Base = (fillet, edges_at(fillet, [
    (-15.588, -107, 12.5),
    (15.588, -107, 12.5),
    (31.177, -80, 12.5),
    (15.588, -53, 12.5),
    (-15.588, -53, 12.5),
    (-31.177, -80, 12.5),
    (-100.459, -40, 12.5),
    (-84.87, -67, 12.5),
    (-53.694, -67, 12.5),
    (-38.105, -40, 12.5),
    (-53.694, -13, 12.5),
    (-84.87, -13, 12.5),
    (-84.87, 67, 12.5),
    (-100.459, 40, 12.5),
    (-84.87, 13, 12.5),
    (-53.694, 13, 12.5),
    (-38.105, 40, 12.5),
    (-53.694, 67, 12.5),
    (100.459, 40, 12.5),
    (84.87, 67, 12.5),
    (53.694, 67, 12.5),
    (38.105, 40, 12.5),
    (53.694, 13, 12.5),
    (84.87, 13, 12.5),
    (84.87, -13, 12.5),
    (53.694, -13, 12.5),
    (38.105, -40, 12.5),
    (53.694, -67, 12.5),
    (84.87, -67, 12.5),
    (100.459, -40, 12.5),
    (103.923, -40, 10.5),
    (86.603, -70, 10.5),
    (17.321, -110, 10.5),
    (-17.321, -110, 10.5),
    (-86.603, -70, 10.5),
    (-103.923, -40, 10.5),
    (-103.923, 40, 10.5),
    (-86.603, 70, 10.5),
    (86.603, 70, 10.5),
    (103.923, 40, 10.5),
]))
fillet2.setExpression("Radius", "Params.fillet2_radius")

doc.recompute()
